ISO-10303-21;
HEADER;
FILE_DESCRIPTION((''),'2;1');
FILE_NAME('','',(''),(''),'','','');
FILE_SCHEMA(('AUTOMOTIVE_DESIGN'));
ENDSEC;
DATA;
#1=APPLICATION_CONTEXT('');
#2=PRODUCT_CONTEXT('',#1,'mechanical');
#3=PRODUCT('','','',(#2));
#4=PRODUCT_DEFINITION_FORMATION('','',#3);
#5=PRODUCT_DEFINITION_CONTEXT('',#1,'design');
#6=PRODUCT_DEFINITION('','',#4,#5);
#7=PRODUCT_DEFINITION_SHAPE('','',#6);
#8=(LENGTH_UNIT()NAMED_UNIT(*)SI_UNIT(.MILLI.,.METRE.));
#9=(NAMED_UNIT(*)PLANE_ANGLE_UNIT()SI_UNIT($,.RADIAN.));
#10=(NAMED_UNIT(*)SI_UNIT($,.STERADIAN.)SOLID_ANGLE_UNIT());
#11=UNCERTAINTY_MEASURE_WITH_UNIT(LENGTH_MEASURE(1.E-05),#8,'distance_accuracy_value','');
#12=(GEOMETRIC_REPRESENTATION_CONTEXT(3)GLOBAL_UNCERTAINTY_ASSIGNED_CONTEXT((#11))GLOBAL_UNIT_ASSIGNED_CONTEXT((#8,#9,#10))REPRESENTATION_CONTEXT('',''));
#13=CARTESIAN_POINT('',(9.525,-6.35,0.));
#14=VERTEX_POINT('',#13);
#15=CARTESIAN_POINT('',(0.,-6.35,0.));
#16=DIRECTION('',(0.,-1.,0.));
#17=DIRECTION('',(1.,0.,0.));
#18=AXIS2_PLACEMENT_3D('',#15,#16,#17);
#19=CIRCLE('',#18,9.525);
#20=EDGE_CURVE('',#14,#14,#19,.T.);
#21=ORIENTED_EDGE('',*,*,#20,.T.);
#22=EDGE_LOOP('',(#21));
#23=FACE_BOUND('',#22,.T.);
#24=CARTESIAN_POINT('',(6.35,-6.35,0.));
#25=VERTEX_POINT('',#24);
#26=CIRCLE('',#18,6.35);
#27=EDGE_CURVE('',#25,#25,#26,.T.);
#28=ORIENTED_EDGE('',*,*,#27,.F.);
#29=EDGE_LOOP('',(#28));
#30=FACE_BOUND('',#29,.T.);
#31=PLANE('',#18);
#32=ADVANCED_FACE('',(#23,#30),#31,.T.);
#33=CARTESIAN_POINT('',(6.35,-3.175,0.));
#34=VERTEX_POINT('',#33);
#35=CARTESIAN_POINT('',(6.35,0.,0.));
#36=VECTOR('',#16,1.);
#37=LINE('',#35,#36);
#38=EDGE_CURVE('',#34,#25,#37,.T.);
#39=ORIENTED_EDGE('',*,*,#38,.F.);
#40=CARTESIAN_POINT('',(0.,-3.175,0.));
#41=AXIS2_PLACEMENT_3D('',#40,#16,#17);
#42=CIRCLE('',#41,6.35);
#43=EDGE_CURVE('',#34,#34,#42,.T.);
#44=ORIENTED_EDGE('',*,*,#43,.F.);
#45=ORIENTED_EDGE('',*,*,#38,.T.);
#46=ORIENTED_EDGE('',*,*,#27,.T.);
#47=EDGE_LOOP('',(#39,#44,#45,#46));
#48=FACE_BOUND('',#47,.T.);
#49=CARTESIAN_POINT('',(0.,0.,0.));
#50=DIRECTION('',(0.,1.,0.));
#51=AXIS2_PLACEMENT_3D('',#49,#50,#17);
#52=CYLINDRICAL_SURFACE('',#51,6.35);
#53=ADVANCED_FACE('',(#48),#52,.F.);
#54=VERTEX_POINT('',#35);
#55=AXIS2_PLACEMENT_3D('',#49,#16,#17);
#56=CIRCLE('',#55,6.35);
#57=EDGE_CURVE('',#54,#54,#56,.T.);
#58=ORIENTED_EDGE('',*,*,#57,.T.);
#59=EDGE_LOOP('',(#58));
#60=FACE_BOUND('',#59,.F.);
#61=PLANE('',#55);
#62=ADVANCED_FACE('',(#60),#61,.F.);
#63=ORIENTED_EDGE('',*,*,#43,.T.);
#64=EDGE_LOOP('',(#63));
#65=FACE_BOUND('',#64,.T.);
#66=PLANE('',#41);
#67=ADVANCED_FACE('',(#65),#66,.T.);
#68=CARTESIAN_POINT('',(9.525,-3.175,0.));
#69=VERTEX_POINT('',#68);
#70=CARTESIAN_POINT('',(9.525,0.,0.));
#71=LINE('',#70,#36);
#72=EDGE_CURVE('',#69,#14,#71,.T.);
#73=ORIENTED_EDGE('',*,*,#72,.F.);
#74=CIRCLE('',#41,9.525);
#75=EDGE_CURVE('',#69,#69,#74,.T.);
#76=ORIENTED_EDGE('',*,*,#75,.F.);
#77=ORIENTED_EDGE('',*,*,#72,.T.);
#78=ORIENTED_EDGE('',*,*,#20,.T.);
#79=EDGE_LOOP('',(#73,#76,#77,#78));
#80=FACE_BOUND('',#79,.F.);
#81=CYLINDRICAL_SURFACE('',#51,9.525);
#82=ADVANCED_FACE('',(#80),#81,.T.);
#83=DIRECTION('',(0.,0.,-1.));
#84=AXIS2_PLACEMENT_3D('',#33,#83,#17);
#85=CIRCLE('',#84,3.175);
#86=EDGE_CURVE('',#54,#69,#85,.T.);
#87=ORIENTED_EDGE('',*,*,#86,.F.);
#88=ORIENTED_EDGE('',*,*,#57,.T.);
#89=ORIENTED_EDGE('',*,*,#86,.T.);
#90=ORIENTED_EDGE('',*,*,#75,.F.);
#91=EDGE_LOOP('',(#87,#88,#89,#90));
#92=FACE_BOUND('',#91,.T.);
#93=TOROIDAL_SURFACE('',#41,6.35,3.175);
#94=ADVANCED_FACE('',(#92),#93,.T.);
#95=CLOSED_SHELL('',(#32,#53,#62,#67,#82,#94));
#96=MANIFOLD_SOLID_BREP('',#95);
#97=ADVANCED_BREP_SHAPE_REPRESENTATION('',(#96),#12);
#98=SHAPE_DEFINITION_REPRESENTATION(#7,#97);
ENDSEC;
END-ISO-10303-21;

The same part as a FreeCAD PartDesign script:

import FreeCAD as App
import Part
import Sketcher

V = App.Vector
Q = App.Units.Quantity


def edges_at(feature, points):
    """Names of the edges that pass closest to the given points."""
    edges = feature.Shape.Edges
    near = lambda p: min(range(len(edges)), key=lambda i: edges[i].distToShape(Part.Vertex(*p))[0])
    return sorted({f"Edge{near(p) + 1}" for p in points})

doc = App.newDocument("Part")
body = doc.addObject("PartDesign::Body", "Body")

sketch1 = doc.addObject("Sketcher::SketchObject", "Sketch")
body.addObject(sketch1)
sketch1.AttachmentSupport = (doc.XZ_Plane, [""])
sketch1.MapMode = "FlatFace"
sketch1.addGeometry([
    Part.Circle(V(0, 0, 0), V(0, 0, 1), 10),
    Part.Circle(V(0, 0, 0), V(0, 0, 1), 6),
], False)
sketch1.addConstraint([
    Sketcher.Constraint("Coincident", 0, 3, -1, 1),
    Sketcher.Constraint("Coincident", 1, 3, -1, 1),
    Sketcher.Constraint("Diameter", 1, Q("0.5 in")),
    Sketcher.Constraint("Diameter", 0, Q("0.75 in")),
])
pad1 = doc.addObject("PartDesign::Pad", "Pad")
body.addObject(pad1)
pad1.Profile = sketch1
pad1.Length = Q("0.25 in")

sketch2 = doc.addObject("Sketcher::SketchObject", "Sketch001")
body.addObject(sketch2)
sketch2.AttachmentSupport = (doc.XZ_Plane, [""])
sketch2.MapMode = "FlatFace"
sketch2.addGeometry(Part.Circle(V(0, 0, 0), V(0, 0, 1), 6), False)
sketch2.addConstraint([
    Sketcher.Constraint("Coincident", 0, 3, -1, 1),
    Sketcher.Constraint("Diameter", 0, Q("0.5 in")),
])
pad2 = doc.addObject("PartDesign::Pad", "Pad001")
body.addObject(pad2)
pad2.Profile = sketch2
pad2.Length = Q("0.125 in")
doc.recompute()

fillet = doc.addObject("PartDesign::Fillet", "Fillet")
body.addObject(fillet)
fillet.Base = (pad2, edges_at(pad2, [(-9.525, 0, 0)]))
fillet.Radius = Q("0.125 in")

doc.recompute()
